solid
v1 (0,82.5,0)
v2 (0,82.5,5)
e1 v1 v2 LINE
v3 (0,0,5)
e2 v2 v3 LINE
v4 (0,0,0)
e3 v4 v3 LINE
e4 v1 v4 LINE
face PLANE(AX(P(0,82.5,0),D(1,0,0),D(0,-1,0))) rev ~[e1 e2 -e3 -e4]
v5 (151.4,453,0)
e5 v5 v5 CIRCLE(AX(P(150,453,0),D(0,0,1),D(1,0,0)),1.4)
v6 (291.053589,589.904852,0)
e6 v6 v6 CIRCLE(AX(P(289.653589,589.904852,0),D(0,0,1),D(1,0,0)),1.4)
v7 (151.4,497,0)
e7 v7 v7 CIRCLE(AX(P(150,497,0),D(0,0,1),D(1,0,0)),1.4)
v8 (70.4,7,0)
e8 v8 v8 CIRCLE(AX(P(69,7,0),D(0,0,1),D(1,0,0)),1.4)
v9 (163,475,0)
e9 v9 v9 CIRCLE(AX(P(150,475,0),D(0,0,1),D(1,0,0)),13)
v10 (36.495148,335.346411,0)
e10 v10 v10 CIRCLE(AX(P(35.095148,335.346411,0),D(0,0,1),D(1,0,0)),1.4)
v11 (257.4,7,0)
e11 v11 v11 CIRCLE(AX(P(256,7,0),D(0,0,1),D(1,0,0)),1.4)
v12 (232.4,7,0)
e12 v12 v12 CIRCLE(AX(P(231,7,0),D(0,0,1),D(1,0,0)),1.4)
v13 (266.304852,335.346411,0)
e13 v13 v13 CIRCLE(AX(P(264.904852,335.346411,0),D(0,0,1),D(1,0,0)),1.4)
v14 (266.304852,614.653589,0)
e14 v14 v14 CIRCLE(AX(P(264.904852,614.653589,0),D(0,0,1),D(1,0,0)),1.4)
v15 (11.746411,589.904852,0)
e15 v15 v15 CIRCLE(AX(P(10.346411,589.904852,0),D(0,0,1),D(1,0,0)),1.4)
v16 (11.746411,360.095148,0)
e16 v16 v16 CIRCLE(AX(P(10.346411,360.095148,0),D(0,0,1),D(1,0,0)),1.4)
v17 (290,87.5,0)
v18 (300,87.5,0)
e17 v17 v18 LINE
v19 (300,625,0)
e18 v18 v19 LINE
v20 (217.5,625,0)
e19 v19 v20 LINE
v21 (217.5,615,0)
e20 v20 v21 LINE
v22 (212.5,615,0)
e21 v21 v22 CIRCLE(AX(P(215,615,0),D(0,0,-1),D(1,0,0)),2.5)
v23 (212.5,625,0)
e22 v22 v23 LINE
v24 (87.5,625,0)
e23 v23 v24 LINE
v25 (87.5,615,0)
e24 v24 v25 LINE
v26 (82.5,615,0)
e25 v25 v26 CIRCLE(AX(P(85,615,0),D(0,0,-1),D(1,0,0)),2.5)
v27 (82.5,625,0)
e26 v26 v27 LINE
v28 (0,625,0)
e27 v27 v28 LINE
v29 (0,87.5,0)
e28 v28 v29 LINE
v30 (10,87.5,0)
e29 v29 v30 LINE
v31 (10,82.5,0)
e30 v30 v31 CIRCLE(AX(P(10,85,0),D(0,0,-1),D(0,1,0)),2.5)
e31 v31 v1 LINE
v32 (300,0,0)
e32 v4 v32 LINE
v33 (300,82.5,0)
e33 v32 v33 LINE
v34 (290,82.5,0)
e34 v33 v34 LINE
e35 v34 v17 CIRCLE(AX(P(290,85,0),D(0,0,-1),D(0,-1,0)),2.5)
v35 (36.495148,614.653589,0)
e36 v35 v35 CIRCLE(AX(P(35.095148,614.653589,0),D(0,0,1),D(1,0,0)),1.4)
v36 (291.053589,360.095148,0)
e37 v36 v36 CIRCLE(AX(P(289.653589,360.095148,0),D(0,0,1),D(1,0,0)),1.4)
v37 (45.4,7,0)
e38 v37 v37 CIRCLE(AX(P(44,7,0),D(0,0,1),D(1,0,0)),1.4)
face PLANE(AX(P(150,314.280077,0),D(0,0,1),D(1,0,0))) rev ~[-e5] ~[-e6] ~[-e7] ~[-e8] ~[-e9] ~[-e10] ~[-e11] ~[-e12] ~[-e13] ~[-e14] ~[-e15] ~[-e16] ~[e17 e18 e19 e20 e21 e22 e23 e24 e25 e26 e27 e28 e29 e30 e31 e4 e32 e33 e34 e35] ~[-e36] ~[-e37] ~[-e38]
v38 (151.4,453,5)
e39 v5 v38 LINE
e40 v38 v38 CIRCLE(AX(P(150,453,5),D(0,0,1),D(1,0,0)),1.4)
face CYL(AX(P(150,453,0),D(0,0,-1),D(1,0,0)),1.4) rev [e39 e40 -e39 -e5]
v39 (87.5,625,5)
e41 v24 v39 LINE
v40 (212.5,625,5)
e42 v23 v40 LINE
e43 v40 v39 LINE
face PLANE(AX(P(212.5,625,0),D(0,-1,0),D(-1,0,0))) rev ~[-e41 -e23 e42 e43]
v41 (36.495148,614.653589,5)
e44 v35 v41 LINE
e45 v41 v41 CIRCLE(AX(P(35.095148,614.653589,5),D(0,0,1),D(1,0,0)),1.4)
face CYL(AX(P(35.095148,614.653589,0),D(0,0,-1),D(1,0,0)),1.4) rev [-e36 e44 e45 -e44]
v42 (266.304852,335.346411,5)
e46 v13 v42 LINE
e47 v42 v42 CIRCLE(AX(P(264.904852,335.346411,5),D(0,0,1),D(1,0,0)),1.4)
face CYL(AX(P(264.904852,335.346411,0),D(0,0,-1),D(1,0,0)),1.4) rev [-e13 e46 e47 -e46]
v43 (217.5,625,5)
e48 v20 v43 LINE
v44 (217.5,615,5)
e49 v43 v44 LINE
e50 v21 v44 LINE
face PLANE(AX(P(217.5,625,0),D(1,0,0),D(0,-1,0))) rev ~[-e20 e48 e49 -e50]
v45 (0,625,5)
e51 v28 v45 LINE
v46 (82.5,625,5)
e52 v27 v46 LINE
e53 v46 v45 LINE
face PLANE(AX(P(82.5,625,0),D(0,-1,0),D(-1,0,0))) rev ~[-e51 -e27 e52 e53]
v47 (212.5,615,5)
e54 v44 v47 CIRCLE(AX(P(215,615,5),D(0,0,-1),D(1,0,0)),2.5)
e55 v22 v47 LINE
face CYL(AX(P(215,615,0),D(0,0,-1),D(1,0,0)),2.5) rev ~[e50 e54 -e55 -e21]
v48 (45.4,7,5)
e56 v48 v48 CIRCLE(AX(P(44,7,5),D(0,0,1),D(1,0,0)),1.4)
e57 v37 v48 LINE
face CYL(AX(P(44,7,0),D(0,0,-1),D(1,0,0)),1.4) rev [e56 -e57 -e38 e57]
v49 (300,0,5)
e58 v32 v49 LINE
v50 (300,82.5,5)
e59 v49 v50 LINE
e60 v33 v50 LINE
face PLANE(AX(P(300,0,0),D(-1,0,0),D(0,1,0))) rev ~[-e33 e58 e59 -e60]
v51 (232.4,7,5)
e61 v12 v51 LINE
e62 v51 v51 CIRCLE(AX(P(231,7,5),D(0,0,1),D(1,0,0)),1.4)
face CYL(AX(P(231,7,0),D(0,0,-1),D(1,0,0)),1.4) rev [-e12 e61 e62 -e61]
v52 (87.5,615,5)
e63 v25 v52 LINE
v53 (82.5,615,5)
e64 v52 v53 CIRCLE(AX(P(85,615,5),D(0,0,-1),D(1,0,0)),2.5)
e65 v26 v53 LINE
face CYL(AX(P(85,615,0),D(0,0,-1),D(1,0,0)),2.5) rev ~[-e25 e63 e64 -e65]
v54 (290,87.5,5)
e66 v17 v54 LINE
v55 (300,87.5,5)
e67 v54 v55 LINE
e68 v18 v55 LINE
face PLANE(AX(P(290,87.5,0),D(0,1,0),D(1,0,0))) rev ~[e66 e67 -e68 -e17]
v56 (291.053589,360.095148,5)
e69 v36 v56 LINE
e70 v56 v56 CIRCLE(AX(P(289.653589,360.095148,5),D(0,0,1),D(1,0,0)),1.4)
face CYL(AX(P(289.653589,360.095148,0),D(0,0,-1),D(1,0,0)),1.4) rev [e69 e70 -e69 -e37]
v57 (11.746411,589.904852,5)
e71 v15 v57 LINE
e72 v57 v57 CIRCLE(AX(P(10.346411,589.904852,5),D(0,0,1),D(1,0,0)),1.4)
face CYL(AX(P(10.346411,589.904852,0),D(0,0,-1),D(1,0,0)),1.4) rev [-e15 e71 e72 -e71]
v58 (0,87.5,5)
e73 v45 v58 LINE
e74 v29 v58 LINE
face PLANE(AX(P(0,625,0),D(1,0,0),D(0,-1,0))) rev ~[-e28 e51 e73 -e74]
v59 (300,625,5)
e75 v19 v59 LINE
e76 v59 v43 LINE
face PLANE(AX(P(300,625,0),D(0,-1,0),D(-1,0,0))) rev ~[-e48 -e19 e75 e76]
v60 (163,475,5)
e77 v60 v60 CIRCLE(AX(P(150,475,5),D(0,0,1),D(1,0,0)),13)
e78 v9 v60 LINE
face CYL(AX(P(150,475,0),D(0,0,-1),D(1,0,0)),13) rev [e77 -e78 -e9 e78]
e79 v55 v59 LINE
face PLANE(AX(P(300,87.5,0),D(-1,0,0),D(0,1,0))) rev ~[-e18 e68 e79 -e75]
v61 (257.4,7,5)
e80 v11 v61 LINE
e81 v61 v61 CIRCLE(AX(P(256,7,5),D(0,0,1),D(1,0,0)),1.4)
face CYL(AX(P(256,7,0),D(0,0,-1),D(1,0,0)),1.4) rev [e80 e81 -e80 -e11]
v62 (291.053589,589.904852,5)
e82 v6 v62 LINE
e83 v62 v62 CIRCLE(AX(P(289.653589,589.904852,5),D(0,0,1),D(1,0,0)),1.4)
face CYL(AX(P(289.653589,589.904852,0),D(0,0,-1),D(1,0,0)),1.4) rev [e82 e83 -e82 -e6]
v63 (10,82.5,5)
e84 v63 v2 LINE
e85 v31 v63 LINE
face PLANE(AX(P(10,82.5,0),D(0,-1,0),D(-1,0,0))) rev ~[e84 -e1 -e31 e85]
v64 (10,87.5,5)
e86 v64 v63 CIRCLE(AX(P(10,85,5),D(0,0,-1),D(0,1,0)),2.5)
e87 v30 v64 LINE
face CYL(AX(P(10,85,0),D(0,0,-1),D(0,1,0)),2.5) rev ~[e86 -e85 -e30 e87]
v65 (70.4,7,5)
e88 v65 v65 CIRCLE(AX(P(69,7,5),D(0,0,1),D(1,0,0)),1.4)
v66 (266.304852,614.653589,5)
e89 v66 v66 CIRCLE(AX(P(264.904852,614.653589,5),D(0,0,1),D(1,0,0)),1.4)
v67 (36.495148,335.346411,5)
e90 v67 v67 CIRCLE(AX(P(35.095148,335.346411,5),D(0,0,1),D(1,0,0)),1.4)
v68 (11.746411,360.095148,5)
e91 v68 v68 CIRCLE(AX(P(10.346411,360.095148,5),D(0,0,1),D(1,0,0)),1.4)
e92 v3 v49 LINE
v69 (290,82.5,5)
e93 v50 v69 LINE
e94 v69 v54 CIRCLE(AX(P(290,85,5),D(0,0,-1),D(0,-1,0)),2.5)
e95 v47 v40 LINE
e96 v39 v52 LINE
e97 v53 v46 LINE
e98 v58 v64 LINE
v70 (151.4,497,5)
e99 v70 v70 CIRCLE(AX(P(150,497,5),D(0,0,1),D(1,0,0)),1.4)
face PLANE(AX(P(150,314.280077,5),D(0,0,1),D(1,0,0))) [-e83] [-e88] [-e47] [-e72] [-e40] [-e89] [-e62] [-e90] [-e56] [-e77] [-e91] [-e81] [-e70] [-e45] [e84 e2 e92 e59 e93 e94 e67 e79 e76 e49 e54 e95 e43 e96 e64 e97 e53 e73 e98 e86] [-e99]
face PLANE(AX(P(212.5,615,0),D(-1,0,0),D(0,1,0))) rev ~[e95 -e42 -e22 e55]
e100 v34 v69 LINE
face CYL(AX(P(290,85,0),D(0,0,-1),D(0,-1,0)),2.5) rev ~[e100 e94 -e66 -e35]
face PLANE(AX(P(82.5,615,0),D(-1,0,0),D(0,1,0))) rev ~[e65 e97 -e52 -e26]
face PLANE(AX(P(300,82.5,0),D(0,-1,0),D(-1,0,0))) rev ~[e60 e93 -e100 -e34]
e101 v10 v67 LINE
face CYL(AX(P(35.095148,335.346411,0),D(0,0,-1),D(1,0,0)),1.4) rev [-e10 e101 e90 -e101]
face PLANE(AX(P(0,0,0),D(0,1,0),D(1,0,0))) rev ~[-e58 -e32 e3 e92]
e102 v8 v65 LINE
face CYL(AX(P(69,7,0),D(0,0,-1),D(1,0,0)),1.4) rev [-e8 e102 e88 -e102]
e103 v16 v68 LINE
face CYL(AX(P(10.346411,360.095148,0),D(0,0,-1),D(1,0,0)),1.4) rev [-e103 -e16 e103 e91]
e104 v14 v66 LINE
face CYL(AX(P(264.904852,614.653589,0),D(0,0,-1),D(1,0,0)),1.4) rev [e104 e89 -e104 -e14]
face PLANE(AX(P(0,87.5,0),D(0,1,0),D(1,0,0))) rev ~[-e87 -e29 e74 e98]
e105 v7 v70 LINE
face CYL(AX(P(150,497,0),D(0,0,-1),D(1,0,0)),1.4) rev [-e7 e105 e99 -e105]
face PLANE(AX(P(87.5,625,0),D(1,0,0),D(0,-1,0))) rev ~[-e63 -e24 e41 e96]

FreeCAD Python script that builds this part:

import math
import FreeCAD as App
import Part
import Sketcher

V = App.Vector
Q = App.Units.Quantity

doc = App.newDocument("Part")
body = doc.addObject("PartDesign::Body", "Body")

sketch1 = body.newObject("Sketcher::SketchObject", "Sketch")
sketch1.AttachmentSupport = (doc.getObject("XY_Plane"), [""])
sketch1.MapMode = "FlatFace"
sketch1.addGeometry(Part.LineSegment(V(82.5, 625, 0), V(0, 625, 0)), False)
sketch1.addGeometry(Part.LineSegment(V(0, 625, 0), V(0, 87.5, 0)), False)
sketch1.addGeometry(Part.LineSegment(V(0, 87.5, 0), V(10, 87.5, 0)), False)
sketch1.addGeometry(Part.ArcOfCircle(Part.Circle(V(10, 85, 0), V(0, 0, 1), 2.5), math.radians(-90), math.radians(90)), False)
sketch1.addGeometry(Part.LineSegment(V(10, 82.5, 0), V(0, 82.5, 0)), False)
sketch1.addGeometry(Part.LineSegment(V(0, 82.5, 0), V(0, 0, 0)), False)
sketch1.addGeometry(Part.LineSegment(V(0, 0, 0), V(300, 0, 0)), False)
sketch1.addGeometry(Part.LineSegment(V(300, 0, 0), V(300, 82.5, 0)), False)
sketch1.addGeometry(Part.LineSegment(V(300, 82.5, 0), V(290, 82.5, 0)), False)
sketch1.addGeometry(Part.ArcOfCircle(Part.Circle(V(290, 85, 0), V(0, 0, 1), 2.5), math.radians(90), math.radians(270)), False)
sketch1.addGeometry(Part.LineSegment(V(290, 87.5, 0), V(300, 87.5, 0)), False)
sketch1.addGeometry(Part.LineSegment(V(300, 87.5, 0), V(300, 625, 0)), False)
sketch1.addGeometry(Part.LineSegment(V(300, 625, 0), V(217.5, 625, 0)), False)
sketch1.addGeometry(Part.LineSegment(V(217.5, 625, 0), V(217.5, 615, 0)), False)
sketch1.addGeometry(Part.ArcOfCircle(Part.Circle(V(215, 615, 0), V(0, 0, 1), 2.5), math.radians(180), math.radians(360)), False)
sketch1.addGeometry(Part.LineSegment(V(212.5, 615, 0), V(212.5, 625, 0)), False)
sketch1.addGeometry(Part.LineSegment(V(212.5, 625, 0), V(87.5, 625, 0)), False)
sketch1.addGeometry(Part.LineSegment(V(87.5, 625, 0), V(87.5, 615, 0)), False)
sketch1.addGeometry(Part.ArcOfCircle(Part.Circle(V(85, 615, 0), V(0, 0, 1), 2.5), math.radians(180), math.radians(360)), False)
sketch1.addGeometry(Part.LineSegment(V(82.5, 615, 0), V(82.5, 625, 0)), False)
sketch1.addGeometry(Part.Circle(V(44, 7, 0), V(0, 0, 1), 1.4), False)
sketch1.addGeometry(Part.Circle(V(69, 7, 0), V(0, 0, 1), 1.4), False)
sketch1.addGeometry(Part.Circle(V(231, 7, 0), V(0, 0, 1), 1.4), False)
sketch1.addGeometry(Part.Circle(V(256, 7, 0), V(0, 0, 1), 1.4), False)
sketch1.addGeometry(Part.Circle(V(35.1, 335.3, 0), V(0, 0, 1), 1.4), False)
sketch1.addGeometry(Part.Circle(V(10.3, 360.1, 0), V(0, 0, 1), 1.4), False)
sketch1.addGeometry(Part.Circle(V(10.3, 589.9, 0), V(0, 0, 1), 1.4), False)
sketch1.addGeometry(Part.Circle(V(35.1, 614.7, 0), V(0, 0, 1), 1.4), False)
sketch1.addGeometry(Part.Circle(V(150, 453, 0), V(0, 0, 1), 1.4), False)
sketch1.addGeometry(Part.Circle(V(264.9, 335.3, 0), V(0, 0, 1), 1.4), False)
sketch1.addGeometry(Part.Circle(V(289.7, 360.1, 0), V(0, 0, 1), 1.4), False)
sketch1.addGeometry(Part.Circle(V(150, 475, 0), V(0, 0, 1), 13), False)
sketch1.addGeometry(Part.Circle(V(150, 497, 0), V(0, 0, 1), 1.4), False)
sketch1.addGeometry(Part.Circle(V(264.9, 614.7, 0), V(0, 0, 1), 1.4), False)
sketch1.addGeometry(Part.Circle(V(289.7, 589.9, 0), V(0, 0, 1), 1.4), False)
sketch1.addConstraint(Sketcher.Constraint("Coincident", 0, 2, 1, 1))
sketch1.addConstraint(Sketcher.Constraint("Coincident", 1, 2, 2, 1))
sketch1.addConstraint(Sketcher.Constraint("Tangent", 2, 2, 3, 2))
sketch1.addConstraint(Sketcher.Constraint("Tangent", 3, 1, 4, 1))
sketch1.addConstraint(Sketcher.Constraint("Coincident", 4, 2, 5, 1))
sketch1.addConstraint(Sketcher.Constraint("Coincident", 5, 2, 6, 1))
sketch1.addConstraint(Sketcher.Constraint("Coincident", 6, 2, 7, 1))
sketch1.addConstraint(Sketcher.Constraint("Coincident", 7, 2, 8, 1))
sketch1.addConstraint(Sketcher.Constraint("Tangent", 8, 2, 9, 2))
sketch1.addConstraint(Sketcher.Constraint("Tangent", 9, 1, 10, 1))
sketch1.addConstraint(Sketcher.Constraint("Coincident", 10, 2, 11, 1))
sketch1.addConstraint(Sketcher.Constraint("Coincident", 11, 2, 12, 1))
sketch1.addConstraint(Sketcher.Constraint("Coincident", 12, 2, 13, 1))
sketch1.addConstraint(Sketcher.Constraint("Tangent", 13, 2, 14, 2))
sketch1.addConstraint(Sketcher.Constraint("Tangent", 14, 1, 15, 1))
sketch1.addConstraint(Sketcher.Constraint("Coincident", 15, 2, 16, 1))
sketch1.addConstraint(Sketcher.Constraint("Coincident", 16, 2, 17, 1))
sketch1.addConstraint(Sketcher.Constraint("Tangent", 17, 2, 18, 2))
sketch1.addConstraint(Sketcher.Constraint("Tangent", 18, 1, 19, 1))
sketch1.addConstraint(Sketcher.Constraint("Coincident", 19, 2, 0, 1))
sketch1.addConstraint(Sketcher.Constraint("Horizontal", 0))
sketch1.addConstraint(Sketcher.Constraint("Vertical", 1))
sketch1.addConstraint(Sketcher.Constraint("Horizontal", 2))
sketch1.addConstraint(Sketcher.Constraint("Horizontal", 4))
sketch1.addConstraint(Sketcher.Constraint("Vertical", 5))
sketch1.addConstraint(Sketcher.Constraint("Horizontal", 6))
sketch1.addConstraint(Sketcher.Constraint("Vertical", 7))
sketch1.addConstraint(Sketcher.Constraint("Horizontal", 8))
sketch1.addConstraint(Sketcher.Constraint("Horizontal", 10))
sketch1.addConstraint(Sketcher.Constraint("Vertical", 11))
sketch1.addConstraint(Sketcher.Constraint("Horizontal", 12))
sketch1.addConstraint(Sketcher.Constraint("Vertical", 13))
sketch1.addConstraint(Sketcher.Constraint("Vertical", 15))
sketch1.addConstraint(Sketcher.Constraint("Horizontal", 16))
sketch1.addConstraint(Sketcher.Constraint("Vertical", 17))
sketch1.addConstraint(Sketcher.Constraint("Vertical", 19))
sketch1.addConstraint(Sketcher.Constraint("Coincident", 5, 2, -1, 1))
sketch1.addConstraint(Sketcher.Constraint("Equal", 3, 9))
sketch1.addConstraint(Sketcher.Constraint("Equal", 9, 14))
sketch1.addConstraint(Sketcher.Constraint("Equal", 14, 18))
sketch1.addConstraint(Sketcher.Constraint("Equal", 20, 21))
sketch1.addConstraint(Sketcher.Constraint("Equal", 21, 22))
sketch1.addConstraint(Sketcher.Constraint("Equal", 22, 23))
sketch1.addConstraint(Sketcher.Constraint("Equal", 23, 24))
sketch1.addConstraint(Sketcher.Constraint("Equal", 24, 25))
sketch1.addConstraint(Sketcher.Constraint("Equal", 25, 26))
sketch1.addConstraint(Sketcher.Constraint("Equal", 26, 27))
sketch1.addConstraint(Sketcher.Constraint("Equal", 27, 28))
sketch1.addConstraint(Sketcher.Constraint("Equal", 28, 29))
sketch1.addConstraint(Sketcher.Constraint("Equal", 29, 30))
sketch1.addConstraint(Sketcher.Constraint("Equal", 30, 32))
sketch1.addConstraint(Sketcher.Constraint("Equal", 32, 33))
sketch1.addConstraint(Sketcher.Constraint("Equal", 33, 34))
sketch1.addConstraint(Sketcher.Constraint("PointOnObject", 0, 2, -2))
sketch1.addConstraint(Sketcher.Constraint("Horizontal", 3, 3, 9, 3))
sketch1.addConstraint(Sketcher.Constraint("Horizontal", 14, 3, 18, 3))
sketch1.addConstraint(Sketcher.Constraint("Horizontal", 20, 3, 21, 3))
sketch1.addConstraint(Sketcher.Constraint("Horizontal", 21, 3, 22, 3))
sketch1.addConstraint(Sketcher.Constraint("Horizontal", 22, 3, 23, 3))
sketch1.addConstraint(Sketcher.Constraint("Horizontal", 24, 3, 29, 3))
sketch1.addConstraint(Sketcher.Constraint("Horizontal", 25, 3, 30, 3))
sketch1.addConstraint(Sketcher.Constraint("Horizontal", 27, 3, 33, 3))
sketch1.addConstraint(Sketcher.Constraint("Horizontal", 26, 3, 34, 3))
sketch1.addConstraint(Sketcher.Constraint("Horizontal", 0, 2, 11, 2))
sketch1.addConstraint(Sketcher.Constraint("Horizontal", 12, 2, 15, 2))
sketch1.addConstraint(Sketcher.Constraint("Vertical", 25, 3, 26, 3))
sketch1.addConstraint(Sketcher.Constraint("Vertical", 24, 3, 27, 3))
sketch1.addConstraint(Sketcher.Constraint("Vertical", 28, 3, 31, 3))
sketch1.addConstraint(Sketcher.Constraint("Vertical", 31, 3, 32, 3))
sketch1.addConstraint(Sketcher.Constraint("Vertical", 29, 3, 33, 3))
sketch1.addConstraint(Sketcher.Constraint("Vertical", 30, 3, 34, 3))
sketch1.addConstraint(Sketcher.Constraint("Vertical", 7, 2, 10, 2))
sketch1.addConstraint(Sketcher.Constraint("Equal", 4, 8))
sketch1.addConstraint(Sketcher.Constraint("Equal", 0, 12))
sketch1.addConstraint(Sketcher.Constraint("Equal", 12, 5))
sketch1.addConstraint(Sketcher.Constraint("Equal", 10, 13))
sketch1.addConstraint(Sketcher.Constraint("Diameter", 31, Q("26 mm")))
sketch1.addConstraint(Sketcher.Constraint("Diameter", 20, Q("2.8 mm")))
sketch1.addConstraint(Sketcher.Constraint("Radius", 3, Q("2.5 mm")))
sketch1.addConstraint(Sketcher.Constraint("DistanceX", 2, 1, 2, 2, Q("10 mm")))
sketch1.addConstraint(Sketcher.Constraint("DistanceX", 6, 1, 6, 2, Q("300 mm")))
sketch1.addConstraint(Sketcher.Constraint("DistanceX", 16, 2, 16, 1, Q("125 mm")))
sketch1.addConstraint(Sketcher.Constraint("DistanceY", 1, 2, 1, 1, Q("537.5 mm")))
sketch1.addConstraint(Sketcher.Constraint("DistanceX", -1, 1, 20, 3, Q("44 mm")))
sketch1.addConstraint(Sketcher.Constraint("DistanceY", -1, 1, 20, 3, Q("7 mm")))
sketch1.addConstraint(Sketcher.Constraint("DistanceX", -1, 1, 21, 3, Q("69 mm")))
sketch1.addConstraint(Sketcher.Constraint("DistanceX", -1, 1, 22, 3, Q("231 mm")))
sketch1.addConstraint(Sketcher.Constraint("DistanceX", -1, 1, 23, 3, Q("256 mm")))
sketch1.addConstraint(Sketcher.Constraint("DistanceX", -1, 1, 28, 3, Q("150 mm")))
sketch1.addConstraint(Sketcher.Constraint("DistanceY", -1, 1, 28, 3, Q("453 mm")))
sketch1.addConstraint(Sketcher.Constraint("DistanceY", -1, 1, 31, 3, Q("475 mm")))
sketch1.addConstraint(Sketcher.Constraint("DistanceY", -1, 1, 32, 3, Q("497 mm")))
sketch1.addConstraint(Sketcher.Constraint("DistanceX", -1, 1, 24, 3, Q("35.095148 mm")))
sketch1.addConstraint(Sketcher.Constraint("DistanceY", -1, 1, 24, 3, Q("335.346411 mm")))
sketch1.addConstraint(Sketcher.Constraint("DistanceX", -1, 1, 25, 3, Q("10.346411 mm")))
sketch1.addConstraint(Sketcher.Constraint("DistanceY", -1, 1, 25, 3, Q("360.095148 mm")))
sketch1.addConstraint(Sketcher.Constraint("DistanceY", -1, 1, 26, 3, Q("589.904852 mm")))
sketch1.addConstraint(Sketcher.Constraint("DistanceY", -1, 1, 27, 3, Q("614.653589 mm")))
sketch1.addConstraint(Sketcher.Constraint("DistanceX", -1, 1, 29, 3, Q("264.904852 mm")))
sketch1.addConstraint(Sketcher.Constraint("DistanceX", -1, 1, 30, 3, Q("289.653589 mm")))
pad1 = body.newObject("PartDesign::Pad", "Pad")
pad1.Profile = sketch1
pad1.Length = 5

doc.recompute()
